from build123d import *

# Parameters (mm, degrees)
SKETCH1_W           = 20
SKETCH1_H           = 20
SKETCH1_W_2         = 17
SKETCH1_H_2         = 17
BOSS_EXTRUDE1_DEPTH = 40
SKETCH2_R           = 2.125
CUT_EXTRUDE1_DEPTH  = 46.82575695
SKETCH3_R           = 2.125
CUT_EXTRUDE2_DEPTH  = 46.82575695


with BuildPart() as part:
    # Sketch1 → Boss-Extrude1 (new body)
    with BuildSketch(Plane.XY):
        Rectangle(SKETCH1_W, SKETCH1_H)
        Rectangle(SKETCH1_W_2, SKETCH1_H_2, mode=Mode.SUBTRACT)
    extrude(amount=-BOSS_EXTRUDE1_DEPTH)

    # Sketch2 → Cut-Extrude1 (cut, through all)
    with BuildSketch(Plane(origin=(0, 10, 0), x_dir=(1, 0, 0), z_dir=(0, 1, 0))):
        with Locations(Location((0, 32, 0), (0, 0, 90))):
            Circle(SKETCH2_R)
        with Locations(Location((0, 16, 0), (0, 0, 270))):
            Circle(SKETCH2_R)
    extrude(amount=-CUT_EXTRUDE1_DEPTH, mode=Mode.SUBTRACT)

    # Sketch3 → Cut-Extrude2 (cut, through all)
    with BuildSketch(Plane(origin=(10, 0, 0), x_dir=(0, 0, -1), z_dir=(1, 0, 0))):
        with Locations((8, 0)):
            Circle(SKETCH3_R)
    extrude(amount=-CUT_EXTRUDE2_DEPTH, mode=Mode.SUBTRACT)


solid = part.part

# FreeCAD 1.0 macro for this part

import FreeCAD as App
import Part
import Sketcher
Q = App.Units.Quantity

doc = App.newDocument("Part")
body = doc.addObject("PartDesign::Body", "Body")

# Sketch on XY plane
sketch1 = body.newObject("Sketcher::SketchObject", "Sketch")
sketch1.AttachmentSupport = (doc.getObject("XY_Plane"), [""])
sketch1.MapMode = "FlatFace"
sketch1.addGeometry(Part.LineSegment(App.Vector(-10, 10, 0), App.Vector(-10, -10, 0)), False)
sketch1.addGeometry(Part.LineSegment(App.Vector(-10, -10, 0), App.Vector(10, -10, 0)), False)
sketch1.addGeometry(Part.LineSegment(App.Vector(10, -10, 0), App.Vector(10, 10, 0)), False)
sketch1.addGeometry(Part.LineSegment(App.Vector(10, 10, 0), App.Vector(-10, 10, 0)), False)
sketch1.addGeometry(Part.LineSegment(App.Vector(8.5, -8.5, 0), App.Vector(-8.5, -8.5, 0)), False)
sketch1.addGeometry(Part.LineSegment(App.Vector(-8.5, -8.5, 0), App.Vector(-8.5, 8.5, 0)), False)
sketch1.addGeometry(Part.LineSegment(App.Vector(-8.5, 8.5, 0), App.Vector(8.5, 8.5, 0)), False)
sketch1.addGeometry(Part.LineSegment(App.Vector(8.5, 8.5, 0), App.Vector(8.5, -8.5, 0)), False)
sketch1.addConstraint(Sketcher.Constraint("Coincident", 0, 2, 1, 1))
sketch1.addConstraint(Sketcher.Constraint("Coincident", 1, 2, 2, 1))
sketch1.addConstraint(Sketcher.Constraint("Coincident", 2, 2, 3, 1))
sketch1.addConstraint(Sketcher.Constraint("Coincident", 3, 2, 0, 1))
sketch1.addConstraint(Sketcher.Constraint("Coincident", 4, 2, 5, 1))
sketch1.addConstraint(Sketcher.Constraint("Coincident", 5, 2, 6, 1))
sketch1.addConstraint(Sketcher.Constraint("Coincident", 6, 2, 7, 1))
sketch1.addConstraint(Sketcher.Constraint("Coincident", 7, 2, 4, 1))
sketch1.addConstraint(Sketcher.Constraint("Vertical", 0))
sketch1.addConstraint(Sketcher.Constraint("Horizontal", 1))
sketch1.addConstraint(Sketcher.Constraint("Vertical", 2))
sketch1.addConstraint(Sketcher.Constraint("Horizontal", 3))
sketch1.addConstraint(Sketcher.Constraint("Horizontal", 4))
sketch1.addConstraint(Sketcher.Constraint("Vertical", 5))
sketch1.addConstraint(Sketcher.Constraint("Horizontal", 6))
sketch1.addConstraint(Sketcher.Constraint("Vertical", 7))
sketch1.addConstraint(Sketcher.Constraint("Symmetric", 0, 2, 2, 2, -1, 1))
sketch1.addConstraint(Sketcher.Constraint("Symmetric", 4, 2, 6, 2, -1, 1))
sketch1.addConstraint(Sketcher.Constraint("Equal", 3, 0))
sketch1.addConstraint(Sketcher.Constraint("Equal", 6, 5))
sketch1.addConstraint(Sketcher.Constraint("DistanceX", 1, 1, 1, 2, Q("20 mm")))
sketch1.addConstraint(Sketcher.Constraint("DistanceX", 4, 2, 4, 1, Q("17 mm")))
pad1 = body.newObject("PartDesign::Pad", "Pad")
pad1.Profile = sketch1
pad1.Length = 40
pad1.Reversed = True

# Sketch on XZ plane
sketch2 = body.newObject("Sketcher::SketchObject", "Sketch001")
sketch2.AttachmentSupport = (doc.getObject("XZ_Plane"), [""])
sketch2.MapMode = "FlatFace"
sketch2.AttachmentOffset = App.Placement(App.Vector(0, 0, -10), App.Rotation())
sketch2.addGeometry(Part.Circle(App.Vector(0, -32, 0), App.Vector(0, 0, 1), 2.125), False)
sketch2.addGeometry(Part.Circle(App.Vector(0, -16, 0), App.Vector(0, 0, 1), 2.125), False)
sketch2.addConstraint(Sketcher.Constraint("Equal", 0, 1))
sketch2.addConstraint(Sketcher.Constraint("PointOnObject", 0, 3, -2))
sketch2.addConstraint(Sketcher.Constraint("PointOnObject", 1, 3, -2))
sketch2.addConstraint(Sketcher.Constraint("Diameter", 0, Q("4.25 mm")))
sketch2.addConstraint(Sketcher.Constraint("DistanceY", 0, 3, -1, 1, Q("32 mm")))
sketch2.addConstraint(Sketcher.Constraint("DistanceY", 1, 3, -1, 1, Q("16 mm")))
pocket1 = body.newObject("PartDesign::Pocket", "Pocket")
pocket1.Profile = sketch2
pocket1.Type = "ThroughAll"
pocket1.Reversed = True

# Sketch on YZ plane
sketch3 = body.newObject("Sketcher::SketchObject", "Sketch002")
sketch3.AttachmentSupport = (doc.getObject("YZ_Plane"), [""])
sketch3.MapMode = "FlatFace"
sketch3.AttachmentOffset = App.Placement(App.Vector(0, 0, 10), App.Rotation())
sketch3.addGeometry(Part.Circle(App.Vector(0, -8, 0), App.Vector(0, 0, 1), 2.125), False)
sketch3.addConstraint(Sketcher.Constraint("PointOnObject", 0, 3, -2))
sketch3.addConstraint(Sketcher.Constraint("Diameter", 0, Q("4.25 mm")))
sketch3.addConstraint(Sketcher.Constraint("DistanceY", 0, 3, -1, 1, Q("8 mm")))
pocket2 = body.newObject("PartDesign::Pocket", "Pocket001")
pocket2.Profile = sketch3
pocket2.Type = "ThroughAll"

doc.recompute()
